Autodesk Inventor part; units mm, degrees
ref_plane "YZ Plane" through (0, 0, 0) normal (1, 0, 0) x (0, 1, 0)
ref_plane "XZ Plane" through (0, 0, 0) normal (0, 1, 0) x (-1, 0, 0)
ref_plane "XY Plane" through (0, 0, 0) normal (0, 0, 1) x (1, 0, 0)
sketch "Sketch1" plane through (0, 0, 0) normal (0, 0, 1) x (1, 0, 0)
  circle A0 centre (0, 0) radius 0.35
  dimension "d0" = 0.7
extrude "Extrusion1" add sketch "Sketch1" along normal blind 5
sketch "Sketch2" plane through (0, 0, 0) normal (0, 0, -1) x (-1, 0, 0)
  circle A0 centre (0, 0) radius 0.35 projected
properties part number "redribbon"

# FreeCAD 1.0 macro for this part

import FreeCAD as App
import Part
import Sketcher

V = App.Vector
Q = App.Units.Quantity

doc = App.newDocument("Part")
body = doc.addObject("PartDesign::Body", "Body")

# Sketch on XY plane
sketch1 = body.newObject("Sketcher::SketchObject", "Sketch")
sketch1.AttachmentSupport = (doc.getObject("XY_Plane"), [""])
sketch1.MapMode = "FlatFace"
sketch1.addGeometry(Part.Circle(V(0, 0, 0), V(0, 0, 1), 0.35), False)
sketch1.addConstraint(Sketcher.Constraint("Coincident", 0, 3, -1, 1))
sketch1.addConstraint(Sketcher.Constraint("Diameter", 0, Q("0.7 mm")))
pad1 = body.newObject("PartDesign::Pad", "Pad")
pad1.Profile = sketch1
pad1.Length = 5

doc.recompute()
